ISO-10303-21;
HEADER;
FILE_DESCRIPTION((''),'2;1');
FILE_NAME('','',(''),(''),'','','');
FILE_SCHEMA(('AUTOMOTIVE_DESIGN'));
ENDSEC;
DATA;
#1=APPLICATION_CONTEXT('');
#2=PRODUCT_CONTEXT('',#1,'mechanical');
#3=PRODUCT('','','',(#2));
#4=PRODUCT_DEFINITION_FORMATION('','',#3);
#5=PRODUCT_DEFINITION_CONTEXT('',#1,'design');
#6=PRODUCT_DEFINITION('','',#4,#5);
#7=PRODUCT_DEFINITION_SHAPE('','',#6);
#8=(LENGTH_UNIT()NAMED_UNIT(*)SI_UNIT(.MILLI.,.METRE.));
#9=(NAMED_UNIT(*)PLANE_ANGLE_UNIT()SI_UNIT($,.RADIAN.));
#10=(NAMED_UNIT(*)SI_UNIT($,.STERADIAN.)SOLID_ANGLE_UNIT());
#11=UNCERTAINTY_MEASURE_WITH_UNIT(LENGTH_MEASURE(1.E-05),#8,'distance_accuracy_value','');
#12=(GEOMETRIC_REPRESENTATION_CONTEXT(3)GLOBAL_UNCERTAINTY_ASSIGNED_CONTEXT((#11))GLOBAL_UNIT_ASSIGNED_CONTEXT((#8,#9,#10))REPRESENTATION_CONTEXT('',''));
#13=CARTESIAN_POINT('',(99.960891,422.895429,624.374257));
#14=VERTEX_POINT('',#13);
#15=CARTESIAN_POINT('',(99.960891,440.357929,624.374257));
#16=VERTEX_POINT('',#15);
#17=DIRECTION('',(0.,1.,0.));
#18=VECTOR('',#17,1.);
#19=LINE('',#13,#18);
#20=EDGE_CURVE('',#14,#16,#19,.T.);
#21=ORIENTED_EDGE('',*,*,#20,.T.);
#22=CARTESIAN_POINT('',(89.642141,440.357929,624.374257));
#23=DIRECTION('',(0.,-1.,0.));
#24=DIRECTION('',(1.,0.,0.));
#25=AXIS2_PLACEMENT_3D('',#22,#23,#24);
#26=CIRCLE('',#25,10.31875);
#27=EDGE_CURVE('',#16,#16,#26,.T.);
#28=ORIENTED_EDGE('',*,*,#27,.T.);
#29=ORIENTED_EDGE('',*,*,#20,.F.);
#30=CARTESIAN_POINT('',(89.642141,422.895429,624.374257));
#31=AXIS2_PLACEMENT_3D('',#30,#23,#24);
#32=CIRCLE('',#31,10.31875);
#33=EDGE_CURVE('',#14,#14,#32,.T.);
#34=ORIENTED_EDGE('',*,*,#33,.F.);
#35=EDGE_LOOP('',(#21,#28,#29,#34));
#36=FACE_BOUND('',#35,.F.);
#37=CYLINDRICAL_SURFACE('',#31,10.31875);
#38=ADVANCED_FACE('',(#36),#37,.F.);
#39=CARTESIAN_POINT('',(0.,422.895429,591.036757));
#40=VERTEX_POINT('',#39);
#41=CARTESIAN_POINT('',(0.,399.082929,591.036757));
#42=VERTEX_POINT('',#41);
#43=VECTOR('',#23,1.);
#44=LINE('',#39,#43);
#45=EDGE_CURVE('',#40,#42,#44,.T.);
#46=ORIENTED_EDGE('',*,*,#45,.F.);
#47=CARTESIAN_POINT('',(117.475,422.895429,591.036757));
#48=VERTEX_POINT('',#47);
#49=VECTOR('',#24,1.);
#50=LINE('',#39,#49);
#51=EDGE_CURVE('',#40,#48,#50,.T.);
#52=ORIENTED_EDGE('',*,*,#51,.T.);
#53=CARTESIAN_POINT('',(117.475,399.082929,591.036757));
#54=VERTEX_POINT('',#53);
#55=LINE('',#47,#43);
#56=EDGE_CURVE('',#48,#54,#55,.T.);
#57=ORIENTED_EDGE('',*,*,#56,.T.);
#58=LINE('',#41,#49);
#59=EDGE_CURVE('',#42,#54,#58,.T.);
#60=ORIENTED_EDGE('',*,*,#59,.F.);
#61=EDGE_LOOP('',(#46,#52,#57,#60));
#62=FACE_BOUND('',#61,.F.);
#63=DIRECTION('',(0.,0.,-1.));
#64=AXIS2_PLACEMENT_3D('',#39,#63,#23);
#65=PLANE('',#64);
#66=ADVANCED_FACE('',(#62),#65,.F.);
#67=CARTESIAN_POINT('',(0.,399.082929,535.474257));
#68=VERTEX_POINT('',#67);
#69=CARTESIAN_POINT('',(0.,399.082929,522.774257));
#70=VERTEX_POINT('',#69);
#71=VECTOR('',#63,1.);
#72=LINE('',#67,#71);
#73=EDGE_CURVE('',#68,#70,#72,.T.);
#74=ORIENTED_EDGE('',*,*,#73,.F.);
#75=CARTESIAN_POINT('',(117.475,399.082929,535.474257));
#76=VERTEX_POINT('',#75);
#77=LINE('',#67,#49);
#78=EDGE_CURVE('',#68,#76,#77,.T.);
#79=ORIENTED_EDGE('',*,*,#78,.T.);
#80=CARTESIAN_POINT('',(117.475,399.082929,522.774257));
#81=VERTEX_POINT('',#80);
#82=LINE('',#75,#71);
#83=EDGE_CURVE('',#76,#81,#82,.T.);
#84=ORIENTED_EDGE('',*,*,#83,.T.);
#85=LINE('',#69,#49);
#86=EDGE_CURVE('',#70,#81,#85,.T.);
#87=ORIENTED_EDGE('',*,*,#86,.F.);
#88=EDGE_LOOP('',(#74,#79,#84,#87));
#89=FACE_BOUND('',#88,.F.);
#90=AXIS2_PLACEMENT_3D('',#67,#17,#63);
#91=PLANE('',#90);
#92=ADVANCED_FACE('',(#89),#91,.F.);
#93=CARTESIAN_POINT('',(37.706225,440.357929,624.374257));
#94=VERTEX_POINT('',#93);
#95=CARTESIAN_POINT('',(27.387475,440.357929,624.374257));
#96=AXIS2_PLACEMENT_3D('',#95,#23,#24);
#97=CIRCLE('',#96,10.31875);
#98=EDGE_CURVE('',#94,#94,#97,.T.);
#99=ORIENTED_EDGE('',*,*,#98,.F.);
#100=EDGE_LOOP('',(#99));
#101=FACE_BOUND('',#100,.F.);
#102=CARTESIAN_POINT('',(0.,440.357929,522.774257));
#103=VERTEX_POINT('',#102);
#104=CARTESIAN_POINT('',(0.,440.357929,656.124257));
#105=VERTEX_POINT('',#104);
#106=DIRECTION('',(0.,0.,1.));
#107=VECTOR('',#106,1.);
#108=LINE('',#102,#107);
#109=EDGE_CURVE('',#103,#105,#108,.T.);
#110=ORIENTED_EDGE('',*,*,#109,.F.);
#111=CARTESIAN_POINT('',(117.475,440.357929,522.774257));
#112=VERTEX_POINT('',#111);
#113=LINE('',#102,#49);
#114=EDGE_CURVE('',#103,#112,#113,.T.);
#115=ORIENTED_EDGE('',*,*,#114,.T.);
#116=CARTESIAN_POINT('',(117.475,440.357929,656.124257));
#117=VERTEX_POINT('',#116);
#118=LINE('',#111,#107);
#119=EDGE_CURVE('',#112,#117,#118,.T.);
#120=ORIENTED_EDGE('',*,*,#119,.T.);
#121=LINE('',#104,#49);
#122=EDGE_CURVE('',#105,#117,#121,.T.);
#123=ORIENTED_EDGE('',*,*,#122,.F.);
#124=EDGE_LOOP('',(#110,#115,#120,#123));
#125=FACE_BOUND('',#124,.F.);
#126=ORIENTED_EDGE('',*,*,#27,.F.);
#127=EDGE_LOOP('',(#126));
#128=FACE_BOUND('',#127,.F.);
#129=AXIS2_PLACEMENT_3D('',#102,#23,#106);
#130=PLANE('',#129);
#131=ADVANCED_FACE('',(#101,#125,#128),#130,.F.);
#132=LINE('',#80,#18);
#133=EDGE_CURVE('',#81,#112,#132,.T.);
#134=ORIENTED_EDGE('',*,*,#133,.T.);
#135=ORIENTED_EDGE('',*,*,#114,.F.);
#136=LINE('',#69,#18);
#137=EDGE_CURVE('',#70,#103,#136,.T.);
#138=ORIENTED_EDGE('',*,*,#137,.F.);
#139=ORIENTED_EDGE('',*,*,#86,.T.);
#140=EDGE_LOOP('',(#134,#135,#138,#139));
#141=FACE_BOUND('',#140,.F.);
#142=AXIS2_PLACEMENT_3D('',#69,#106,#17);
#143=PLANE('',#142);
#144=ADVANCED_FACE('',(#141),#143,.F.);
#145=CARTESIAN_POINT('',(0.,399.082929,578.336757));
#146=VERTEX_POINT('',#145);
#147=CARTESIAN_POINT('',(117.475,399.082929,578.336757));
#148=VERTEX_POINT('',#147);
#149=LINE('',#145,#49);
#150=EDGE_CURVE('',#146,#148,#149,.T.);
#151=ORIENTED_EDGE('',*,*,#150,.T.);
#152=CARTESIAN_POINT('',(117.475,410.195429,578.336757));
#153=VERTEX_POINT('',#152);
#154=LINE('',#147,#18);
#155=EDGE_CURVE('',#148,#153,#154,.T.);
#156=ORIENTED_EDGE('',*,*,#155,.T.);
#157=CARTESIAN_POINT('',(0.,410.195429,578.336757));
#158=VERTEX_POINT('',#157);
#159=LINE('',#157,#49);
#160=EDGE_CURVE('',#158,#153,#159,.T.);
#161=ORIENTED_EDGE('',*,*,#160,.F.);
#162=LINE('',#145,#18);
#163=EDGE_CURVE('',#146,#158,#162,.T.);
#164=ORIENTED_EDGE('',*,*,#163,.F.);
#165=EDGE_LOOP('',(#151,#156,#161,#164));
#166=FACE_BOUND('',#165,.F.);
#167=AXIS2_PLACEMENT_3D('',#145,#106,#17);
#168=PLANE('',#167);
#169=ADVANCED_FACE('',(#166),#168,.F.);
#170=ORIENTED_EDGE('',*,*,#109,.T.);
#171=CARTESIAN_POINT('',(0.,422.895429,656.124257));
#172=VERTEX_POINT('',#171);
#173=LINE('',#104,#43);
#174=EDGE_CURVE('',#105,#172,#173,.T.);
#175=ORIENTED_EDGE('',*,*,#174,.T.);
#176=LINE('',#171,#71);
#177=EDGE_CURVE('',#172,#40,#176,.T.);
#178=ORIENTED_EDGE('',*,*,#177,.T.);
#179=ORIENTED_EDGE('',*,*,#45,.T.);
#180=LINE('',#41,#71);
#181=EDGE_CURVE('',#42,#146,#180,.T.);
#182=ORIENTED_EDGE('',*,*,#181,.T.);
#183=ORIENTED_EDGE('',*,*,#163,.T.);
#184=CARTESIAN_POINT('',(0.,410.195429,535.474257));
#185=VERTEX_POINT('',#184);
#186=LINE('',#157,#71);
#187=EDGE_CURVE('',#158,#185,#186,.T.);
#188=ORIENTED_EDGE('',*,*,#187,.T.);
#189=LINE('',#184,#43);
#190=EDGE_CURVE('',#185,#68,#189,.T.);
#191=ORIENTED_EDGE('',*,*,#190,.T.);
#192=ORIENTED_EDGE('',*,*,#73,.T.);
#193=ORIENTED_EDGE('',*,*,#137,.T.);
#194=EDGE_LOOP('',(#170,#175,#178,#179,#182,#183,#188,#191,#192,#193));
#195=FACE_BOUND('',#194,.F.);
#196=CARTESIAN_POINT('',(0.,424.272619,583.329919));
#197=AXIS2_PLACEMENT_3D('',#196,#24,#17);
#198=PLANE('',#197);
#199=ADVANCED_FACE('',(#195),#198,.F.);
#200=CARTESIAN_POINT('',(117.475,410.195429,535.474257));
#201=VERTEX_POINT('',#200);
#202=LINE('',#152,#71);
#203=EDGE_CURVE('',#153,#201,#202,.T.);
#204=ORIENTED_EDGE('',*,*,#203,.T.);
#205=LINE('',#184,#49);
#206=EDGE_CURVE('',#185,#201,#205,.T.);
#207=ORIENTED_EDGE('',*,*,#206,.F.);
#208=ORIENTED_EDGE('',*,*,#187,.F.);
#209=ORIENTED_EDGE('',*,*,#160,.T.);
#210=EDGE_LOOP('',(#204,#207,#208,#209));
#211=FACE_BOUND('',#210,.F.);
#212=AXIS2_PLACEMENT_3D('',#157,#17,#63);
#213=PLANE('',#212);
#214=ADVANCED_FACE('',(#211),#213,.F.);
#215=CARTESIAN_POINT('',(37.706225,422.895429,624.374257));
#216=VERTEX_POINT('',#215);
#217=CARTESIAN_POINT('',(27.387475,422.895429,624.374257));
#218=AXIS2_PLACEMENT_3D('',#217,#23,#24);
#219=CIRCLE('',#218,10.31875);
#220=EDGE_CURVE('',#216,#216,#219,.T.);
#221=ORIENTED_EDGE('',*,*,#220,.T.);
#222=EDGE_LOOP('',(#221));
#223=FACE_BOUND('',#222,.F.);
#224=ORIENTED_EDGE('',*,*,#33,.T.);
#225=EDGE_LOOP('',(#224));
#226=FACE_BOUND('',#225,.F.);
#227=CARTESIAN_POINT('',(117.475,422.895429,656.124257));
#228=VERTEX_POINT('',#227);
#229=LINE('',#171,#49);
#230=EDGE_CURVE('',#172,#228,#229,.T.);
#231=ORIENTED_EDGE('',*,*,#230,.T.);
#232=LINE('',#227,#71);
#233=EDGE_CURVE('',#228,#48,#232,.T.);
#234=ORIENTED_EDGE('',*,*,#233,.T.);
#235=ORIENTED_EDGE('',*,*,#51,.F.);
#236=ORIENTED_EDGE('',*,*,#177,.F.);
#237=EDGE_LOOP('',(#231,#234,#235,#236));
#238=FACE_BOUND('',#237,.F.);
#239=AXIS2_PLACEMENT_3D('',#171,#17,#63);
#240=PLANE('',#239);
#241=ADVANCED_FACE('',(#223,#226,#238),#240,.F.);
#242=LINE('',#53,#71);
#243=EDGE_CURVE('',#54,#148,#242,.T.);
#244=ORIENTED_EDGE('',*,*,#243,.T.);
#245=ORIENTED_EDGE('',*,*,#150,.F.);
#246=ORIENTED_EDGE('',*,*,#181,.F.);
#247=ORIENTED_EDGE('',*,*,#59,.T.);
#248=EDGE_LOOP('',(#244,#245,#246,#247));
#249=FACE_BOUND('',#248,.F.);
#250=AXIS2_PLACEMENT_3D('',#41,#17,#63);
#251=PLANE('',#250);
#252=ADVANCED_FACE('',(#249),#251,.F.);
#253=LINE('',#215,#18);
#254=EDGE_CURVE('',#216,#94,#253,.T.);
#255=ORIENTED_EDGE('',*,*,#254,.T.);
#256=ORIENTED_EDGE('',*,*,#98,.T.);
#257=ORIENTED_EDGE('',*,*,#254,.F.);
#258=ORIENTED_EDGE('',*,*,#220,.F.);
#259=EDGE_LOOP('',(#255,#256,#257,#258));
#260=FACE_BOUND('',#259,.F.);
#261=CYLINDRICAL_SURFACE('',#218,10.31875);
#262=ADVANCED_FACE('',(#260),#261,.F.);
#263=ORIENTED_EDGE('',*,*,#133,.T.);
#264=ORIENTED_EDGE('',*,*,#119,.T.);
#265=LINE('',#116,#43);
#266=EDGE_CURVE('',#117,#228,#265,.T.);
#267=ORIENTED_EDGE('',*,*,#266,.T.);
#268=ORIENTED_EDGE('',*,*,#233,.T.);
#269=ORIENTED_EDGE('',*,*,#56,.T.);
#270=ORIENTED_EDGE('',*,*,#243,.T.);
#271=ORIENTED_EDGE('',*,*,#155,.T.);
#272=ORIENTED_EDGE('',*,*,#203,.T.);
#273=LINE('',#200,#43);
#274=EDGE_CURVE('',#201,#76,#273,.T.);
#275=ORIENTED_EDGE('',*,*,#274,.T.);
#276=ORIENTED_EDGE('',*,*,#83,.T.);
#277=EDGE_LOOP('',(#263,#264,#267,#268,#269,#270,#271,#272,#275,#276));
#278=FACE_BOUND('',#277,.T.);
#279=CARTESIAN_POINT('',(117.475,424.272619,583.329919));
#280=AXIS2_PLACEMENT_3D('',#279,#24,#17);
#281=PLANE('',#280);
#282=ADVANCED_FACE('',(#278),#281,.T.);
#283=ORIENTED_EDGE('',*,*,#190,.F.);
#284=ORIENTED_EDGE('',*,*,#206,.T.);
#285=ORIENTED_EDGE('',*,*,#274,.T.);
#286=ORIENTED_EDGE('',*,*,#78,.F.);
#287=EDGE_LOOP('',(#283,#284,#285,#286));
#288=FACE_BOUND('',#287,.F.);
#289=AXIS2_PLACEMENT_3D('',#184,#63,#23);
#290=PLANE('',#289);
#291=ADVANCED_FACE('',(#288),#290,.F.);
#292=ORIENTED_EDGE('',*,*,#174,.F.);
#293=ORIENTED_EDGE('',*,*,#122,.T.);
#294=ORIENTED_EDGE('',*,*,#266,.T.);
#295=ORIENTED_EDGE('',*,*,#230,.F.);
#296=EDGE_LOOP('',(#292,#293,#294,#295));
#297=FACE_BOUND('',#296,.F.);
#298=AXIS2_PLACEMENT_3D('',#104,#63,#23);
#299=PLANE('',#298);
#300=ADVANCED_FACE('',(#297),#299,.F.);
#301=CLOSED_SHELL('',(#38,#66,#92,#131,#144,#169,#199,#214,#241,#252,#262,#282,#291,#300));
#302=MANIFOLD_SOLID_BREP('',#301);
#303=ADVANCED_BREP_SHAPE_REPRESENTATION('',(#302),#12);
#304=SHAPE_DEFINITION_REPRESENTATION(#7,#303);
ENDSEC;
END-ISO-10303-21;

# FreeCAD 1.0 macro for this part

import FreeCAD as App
import Part
import Sketcher
from FreeCAD import Vector
Q = App.Units.Quantity

doc = App.newDocument("Part")
body = doc.addObject("PartDesign::Body", "Body")

sketch1 = body.newObject("Sketcher::SketchObject", "Sketch")
sketch1.AttachmentSupport = (doc.getObject("YZ_Plane"), [""])
sketch1.MapMode = "FlatFace"
sketch1.addGeometry(Part.LineSegment(Vector(440.357929, 522.774257, 0), Vector(440.357929, 656.124257, 0)), False)
sketch1.addGeometry(Part.LineSegment(Vector(440.357929, 656.124257, 0), Vector(422.895429, 656.124257, 0)), False)
sketch1.addGeometry(Part.LineSegment(Vector(422.895429, 656.124257, 0), Vector(422.895429, 591.036757, 0)), False)
sketch1.addGeometry(Part.LineSegment(Vector(422.895429, 591.036757, 0), Vector(399.082929, 591.036757, 0)), False)
sketch1.addGeometry(Part.LineSegment(Vector(399.082929, 591.036757, 0), Vector(399.082929, 578.336757, 0)), False)
sketch1.addGeometry(Part.LineSegment(Vector(399.082929, 578.336757, 0), Vector(410.195429, 578.336757, 0)), False)
sketch1.addGeometry(Part.LineSegment(Vector(410.195429, 578.336757, 0), Vector(410.195429, 535.474257, 0)), False)
sketch1.addGeometry(Part.LineSegment(Vector(410.195429, 535.474257, 0), Vector(399.082929, 535.474257, 0)), False)
sketch1.addGeometry(Part.LineSegment(Vector(399.082929, 535.474257, 0), Vector(399.082929, 522.774257, 0)), False)
sketch1.addGeometry(Part.LineSegment(Vector(399.082929, 522.774257, 0), Vector(440.357929, 522.774257, 0)), False)
sketch1.addConstraint(Sketcher.Constraint("Coincident", 0, 2, 1, 1))
sketch1.addConstraint(Sketcher.Constraint("Coincident", 1, 2, 2, 1))
sketch1.addConstraint(Sketcher.Constraint("Coincident", 2, 2, 3, 1))
sketch1.addConstraint(Sketcher.Constraint("Coincident", 3, 2, 4, 1))
sketch1.addConstraint(Sketcher.Constraint("Coincident", 4, 2, 5, 1))
sketch1.addConstraint(Sketcher.Constraint("Coincident", 5, 2, 6, 1))
sketch1.addConstraint(Sketcher.Constraint("Coincident", 6, 2, 7, 1))
sketch1.addConstraint(Sketcher.Constraint("Coincident", 7, 2, 8, 1))
sketch1.addConstraint(Sketcher.Constraint("Coincident", 8, 2, 9, 1))
sketch1.addConstraint(Sketcher.Constraint("Coincident", 9, 2, 0, 1))
sketch1.addConstraint(Sketcher.Constraint("Vertical", 0))
sketch1.addConstraint(Sketcher.Constraint("Horizontal", 1))
sketch1.addConstraint(Sketcher.Constraint("Vertical", 2))
sketch1.addConstraint(Sketcher.Constraint("Horizontal", 3))
sketch1.addConstraint(Sketcher.Constraint("Vertical", 4))
sketch1.addConstraint(Sketcher.Constraint("Horizontal", 5))
sketch1.addConstraint(Sketcher.Constraint("Vertical", 6))
sketch1.addConstraint(Sketcher.Constraint("Horizontal", 7))
sketch1.addConstraint(Sketcher.Constraint("Vertical", 8))
sketch1.addConstraint(Sketcher.Constraint("Horizontal", 9))
sketch1.addConstraint(Sketcher.Constraint("Vertical", 4, 2, 7, 2))
sketch1.addConstraint(Sketcher.Constraint("Equal", 4, 8))
sketch1.addConstraint(Sketcher.Constraint("DistanceY", 4, 2, 4, 1, Q("0.5 in")))
sketch1.addConstraint(Sketcher.Constraint("DistanceY", 0, 1, 0, 2, Q("5.25 in")))
sketch1.addConstraint(Sketcher.Constraint("DistanceX", 5, 2, 2, 2, Q("0.5 in")))
sketch1.addConstraint(Sketcher.Constraint("DistanceX", 1, 2, 1, 1, Q("0.6875 in")))
sketch1.addConstraint(Sketcher.Constraint("DistanceX", 3, 2, 3, 1, Q("0.9375 in")))
sketch1.addConstraint(Sketcher.Constraint("DistanceY", 2, 2, 2, 1, Q("2.5625 in")))
sketch1.addConstraint(Sketcher.Constraint("DistanceX", -1, 1, 0, 2, Q("440.357929 mm")))
sketch1.addConstraint(Sketcher.Constraint("DistanceY", -1, 1, 0, 2, Q("656.124257 mm")))
pad1 = body.newObject("PartDesign::Pad", "Pad")
pad1.Profile = sketch1
pad1.Length = Q("4.625 in")

sketch2 = body.newObject("Sketcher::SketchObject", "Sketch001")
sketch2.AttachmentSupport = (doc.getObject("XZ_Plane"), [""])
sketch2.MapMode = "FlatFace"
sketch2.AttachmentOffset = App.Placement(Vector(0, 0, -422.895429), App.Rotation())
sketch2.addGeometry(Part.Circle(Vector(27.387475, 624.374257, 0), Vector(0, 0, 1), 10.31875), False)
sketch2.addGeometry(Part.Circle(Vector(89.642141, 624.374257, 0), Vector(0, 0, 1), 10.31875), False)
sketch2.addConstraint(Sketcher.Constraint("Equal", 0, 1))
sketch2.addConstraint(Sketcher.Constraint("Horizontal", 0, 3, 1, 3))
sketch2.addConstraint(Sketcher.Constraint("Diameter", 0, Q("0.8125 in")))
sketch2.addConstraint(Sketcher.Constraint("DistanceX", -1, 1, 1, 3, Q("89.642141 mm")))
sketch2.addConstraint(Sketcher.Constraint("DistanceX", -1, 1, 0, 3, Q("27.387475 mm")))
sketch2.addConstraint(Sketcher.Constraint("DistanceY", -1, 1, 0, 3, Q("624.374257 mm")))
pocket1 = body.newObject("PartDesign::Pocket", "Pocket")
pocket1.Profile = sketch2
pocket1.Type = "ThroughAll"

doc.recompute()
